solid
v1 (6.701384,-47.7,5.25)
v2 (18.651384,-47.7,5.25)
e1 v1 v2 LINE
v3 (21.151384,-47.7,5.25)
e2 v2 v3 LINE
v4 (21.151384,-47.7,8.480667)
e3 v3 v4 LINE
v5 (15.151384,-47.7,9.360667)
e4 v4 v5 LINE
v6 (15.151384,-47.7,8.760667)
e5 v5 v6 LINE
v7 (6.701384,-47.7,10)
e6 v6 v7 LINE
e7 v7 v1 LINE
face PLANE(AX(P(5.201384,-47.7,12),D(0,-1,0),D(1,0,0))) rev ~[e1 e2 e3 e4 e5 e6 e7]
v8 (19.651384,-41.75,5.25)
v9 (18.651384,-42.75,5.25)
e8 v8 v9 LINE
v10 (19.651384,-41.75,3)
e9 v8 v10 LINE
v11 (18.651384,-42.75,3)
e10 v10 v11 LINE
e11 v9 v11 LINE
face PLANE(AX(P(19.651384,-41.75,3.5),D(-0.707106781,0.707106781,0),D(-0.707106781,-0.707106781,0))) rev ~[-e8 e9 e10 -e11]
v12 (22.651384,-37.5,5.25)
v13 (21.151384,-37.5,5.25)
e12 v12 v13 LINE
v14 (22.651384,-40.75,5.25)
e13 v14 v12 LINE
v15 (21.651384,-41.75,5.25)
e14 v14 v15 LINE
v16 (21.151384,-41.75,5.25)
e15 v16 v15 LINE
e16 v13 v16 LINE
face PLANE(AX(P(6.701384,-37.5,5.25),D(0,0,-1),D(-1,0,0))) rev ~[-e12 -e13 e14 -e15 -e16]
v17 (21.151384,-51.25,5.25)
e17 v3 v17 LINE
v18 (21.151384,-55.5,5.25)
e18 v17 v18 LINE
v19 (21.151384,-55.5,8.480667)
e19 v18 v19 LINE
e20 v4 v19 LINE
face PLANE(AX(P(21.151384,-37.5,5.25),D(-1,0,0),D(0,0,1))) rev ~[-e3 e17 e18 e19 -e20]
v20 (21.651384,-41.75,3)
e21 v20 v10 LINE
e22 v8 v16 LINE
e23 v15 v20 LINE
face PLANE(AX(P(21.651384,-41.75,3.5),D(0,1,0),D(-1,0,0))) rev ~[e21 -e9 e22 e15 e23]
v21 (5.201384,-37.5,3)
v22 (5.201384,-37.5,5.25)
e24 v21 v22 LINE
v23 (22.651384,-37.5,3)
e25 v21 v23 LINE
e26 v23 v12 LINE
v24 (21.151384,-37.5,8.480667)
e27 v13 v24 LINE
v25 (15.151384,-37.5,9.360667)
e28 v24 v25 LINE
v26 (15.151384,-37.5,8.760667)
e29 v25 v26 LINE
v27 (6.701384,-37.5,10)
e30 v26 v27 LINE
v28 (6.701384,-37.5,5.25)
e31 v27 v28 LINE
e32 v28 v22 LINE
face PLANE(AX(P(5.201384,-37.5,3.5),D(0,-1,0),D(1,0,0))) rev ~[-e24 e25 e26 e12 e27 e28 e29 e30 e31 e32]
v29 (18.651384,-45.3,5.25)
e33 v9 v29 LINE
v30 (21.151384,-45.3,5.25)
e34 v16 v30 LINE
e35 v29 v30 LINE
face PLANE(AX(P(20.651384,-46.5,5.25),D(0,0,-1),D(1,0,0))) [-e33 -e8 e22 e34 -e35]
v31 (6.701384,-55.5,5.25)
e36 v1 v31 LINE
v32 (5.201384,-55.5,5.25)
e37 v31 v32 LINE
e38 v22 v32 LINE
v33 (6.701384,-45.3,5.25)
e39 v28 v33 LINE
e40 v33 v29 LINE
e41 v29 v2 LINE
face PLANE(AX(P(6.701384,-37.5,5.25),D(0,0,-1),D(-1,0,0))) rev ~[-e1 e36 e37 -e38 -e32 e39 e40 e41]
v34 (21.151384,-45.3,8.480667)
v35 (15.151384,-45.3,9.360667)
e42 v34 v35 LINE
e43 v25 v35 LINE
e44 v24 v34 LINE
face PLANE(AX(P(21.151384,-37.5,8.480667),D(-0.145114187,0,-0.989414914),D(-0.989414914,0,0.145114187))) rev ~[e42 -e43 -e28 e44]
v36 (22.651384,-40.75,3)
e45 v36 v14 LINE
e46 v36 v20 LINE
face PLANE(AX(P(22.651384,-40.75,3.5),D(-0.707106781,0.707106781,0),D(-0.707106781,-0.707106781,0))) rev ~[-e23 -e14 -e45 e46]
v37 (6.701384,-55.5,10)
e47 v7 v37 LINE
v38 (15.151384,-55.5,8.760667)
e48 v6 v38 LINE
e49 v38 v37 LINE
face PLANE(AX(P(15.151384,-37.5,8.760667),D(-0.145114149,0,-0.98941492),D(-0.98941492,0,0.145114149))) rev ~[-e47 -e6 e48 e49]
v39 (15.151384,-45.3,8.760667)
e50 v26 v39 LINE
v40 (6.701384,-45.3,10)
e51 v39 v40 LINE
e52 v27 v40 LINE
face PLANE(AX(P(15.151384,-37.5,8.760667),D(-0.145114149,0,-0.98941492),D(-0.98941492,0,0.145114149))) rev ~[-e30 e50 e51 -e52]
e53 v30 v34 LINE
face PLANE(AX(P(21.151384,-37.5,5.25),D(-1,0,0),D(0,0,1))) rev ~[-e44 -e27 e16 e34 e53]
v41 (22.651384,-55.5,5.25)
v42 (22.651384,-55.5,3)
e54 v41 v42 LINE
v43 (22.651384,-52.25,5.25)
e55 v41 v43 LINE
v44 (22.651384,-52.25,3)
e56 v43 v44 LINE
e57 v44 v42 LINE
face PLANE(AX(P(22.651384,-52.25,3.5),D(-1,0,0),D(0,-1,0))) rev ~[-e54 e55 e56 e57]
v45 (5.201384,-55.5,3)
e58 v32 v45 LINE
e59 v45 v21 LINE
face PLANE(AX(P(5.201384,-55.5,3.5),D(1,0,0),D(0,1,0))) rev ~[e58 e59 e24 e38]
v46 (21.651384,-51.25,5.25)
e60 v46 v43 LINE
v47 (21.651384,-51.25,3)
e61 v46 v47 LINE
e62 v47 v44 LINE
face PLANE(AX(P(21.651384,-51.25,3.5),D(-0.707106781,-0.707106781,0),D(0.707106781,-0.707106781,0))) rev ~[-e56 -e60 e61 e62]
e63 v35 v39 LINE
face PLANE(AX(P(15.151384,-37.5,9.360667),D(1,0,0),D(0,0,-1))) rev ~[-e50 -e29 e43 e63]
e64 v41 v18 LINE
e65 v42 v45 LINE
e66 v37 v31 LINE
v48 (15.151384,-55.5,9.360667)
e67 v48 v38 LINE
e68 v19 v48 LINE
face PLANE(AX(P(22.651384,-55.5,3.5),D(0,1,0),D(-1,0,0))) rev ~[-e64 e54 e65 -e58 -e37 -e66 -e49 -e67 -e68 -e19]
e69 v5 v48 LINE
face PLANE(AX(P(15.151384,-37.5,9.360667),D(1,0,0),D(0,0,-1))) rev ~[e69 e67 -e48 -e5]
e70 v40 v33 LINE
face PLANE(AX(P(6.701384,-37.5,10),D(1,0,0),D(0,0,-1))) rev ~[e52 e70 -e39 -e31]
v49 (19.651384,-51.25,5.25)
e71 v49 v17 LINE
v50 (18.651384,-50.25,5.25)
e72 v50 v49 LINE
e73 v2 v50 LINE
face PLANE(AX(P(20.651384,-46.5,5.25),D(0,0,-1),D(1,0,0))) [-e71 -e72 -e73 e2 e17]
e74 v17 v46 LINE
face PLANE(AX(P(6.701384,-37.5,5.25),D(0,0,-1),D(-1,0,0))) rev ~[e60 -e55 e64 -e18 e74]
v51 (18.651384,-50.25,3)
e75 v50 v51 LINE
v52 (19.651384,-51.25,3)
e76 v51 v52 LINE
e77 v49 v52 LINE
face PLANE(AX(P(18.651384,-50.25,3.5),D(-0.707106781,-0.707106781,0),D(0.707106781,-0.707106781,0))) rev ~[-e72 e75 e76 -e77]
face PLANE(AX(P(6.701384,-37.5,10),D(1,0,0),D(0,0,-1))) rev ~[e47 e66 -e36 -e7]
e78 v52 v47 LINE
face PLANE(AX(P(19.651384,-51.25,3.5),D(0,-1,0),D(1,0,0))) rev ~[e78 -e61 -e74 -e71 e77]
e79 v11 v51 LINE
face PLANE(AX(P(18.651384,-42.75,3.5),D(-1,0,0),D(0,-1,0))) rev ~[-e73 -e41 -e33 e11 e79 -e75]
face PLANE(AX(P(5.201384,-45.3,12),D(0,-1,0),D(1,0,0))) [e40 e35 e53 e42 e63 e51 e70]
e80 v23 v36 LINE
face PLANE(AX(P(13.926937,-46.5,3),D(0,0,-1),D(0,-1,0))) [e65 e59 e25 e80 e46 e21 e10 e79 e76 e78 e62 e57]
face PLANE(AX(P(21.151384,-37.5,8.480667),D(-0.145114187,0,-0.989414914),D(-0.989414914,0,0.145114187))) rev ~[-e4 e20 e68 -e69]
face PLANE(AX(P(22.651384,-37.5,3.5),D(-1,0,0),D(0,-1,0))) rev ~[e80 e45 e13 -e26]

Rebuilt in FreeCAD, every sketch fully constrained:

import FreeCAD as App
import Part
import Sketcher

V = App.Vector


def edges_at(feature, points):
    """Names of the edges that pass closest to the given points."""
    edges = feature.Shape.Edges
    near = lambda p: min(range(len(edges)), key=lambda i: edges[i].distToShape(Part.Vertex(*p))[0])
    return sorted({f"Edge{near(p) + 1}" for p in points})

doc = App.newDocument("Part")
params = doc.addObject("Spreadsheet::Sheet", "Params")
for row, (alias, value) in enumerate([
    ("sketch1_height", "1 mm"),
    ("sketch1_width", "1.5 mm"),
    ("sketch1_height2", "0.6 mm"),
    ("sketch1_width2", "17.45 mm"),
    ("sketch1_height3", "4.75 mm"),
    ("pad1_length", "18 mm"),
    ("sketch2_height", "2.4 mm"),
    ("sketch2_width", "17.45 mm"),
    ("pocket1_length", "6.75 mm"),
    ("sketch3_width", "6 mm"),
    ("pad2_length", "0.75 mm"),
    ("sketch4_width", "4 mm"),
    ("sketch4_height", "9.5 mm"),
    ("pocket2_length", "1 mm"),
    ("chamfer_size", "1 mm"),
    ("sketch5_width", "6 mm"),
    ("sketch5_height", "0.75 mm"),
    ("pad3_length", "12 mm"),
    ("sketch6_width", "2 mm"),
    ("sketch6_height", "18 mm"),
    ("sketch6_height2", "7.5 mm"),
    ("sketch6_width2", "11.45 mm"),
    ("pad4_length", "0.75 mm"),
    ("sketch7_width", "2 mm"),
    ("sketch7_height", "18 mm"),
    ("sketch7_height2", "7.5 mm"),
    ("sketch7_width2", "17.45 mm"),
    ("pad5_length", "0.5 mm"),
], start=1):
    params.set(f"A{row}", alias)
    params.set(f"B{row}", "=" + value)
    params.setAlias(f"B{row}", alias)

body = doc.addObject("PartDesign::Body", "Body")

# Sketch on XZ plane
sketch1 = doc.addObject("Sketcher::SketchObject", "Sketch")
body.addObject(sketch1)
sketch1.AttachmentSupport = (doc.XZ_Plane, [""])
sketch1.MapMode = "FlatFace"
sketch1.addGeometry([
    Part.LineSegment(V(21.151384, 8.480667, 0), V(15.151384, 9.360667, 0)),  # 0
    Part.LineSegment(V(15.151384, 9.360667, 0), V(15.151384, 8.760667, 0)),  # 1
    Part.LineSegment(V(15.151384, 8.760667, 0), V(6.701384, 10, 0)),  # 2
    Part.LineSegment(V(6.701384, 10, 0), V(6.701384, 5.25, 0)),  # 3
    Part.LineSegment(V(6.701384, 5.25, 0), V(5.201384, 5.25, 0)),  # 4
    Part.LineSegment(V(5.201384, 5.25, 0), V(5.201384, 4.25, 0)),  # 5
    Part.LineSegment(V(5.201384, 4.25, 0), V(22.651384, 4.25, 0)),  # 6
    Part.LineSegment(V(22.651384, 4.25, 0), V(22.651384, 5.25, 0)),  # 7
    Part.LineSegment(V(22.651384, 5.25, 0), V(21.151384, 5.25, 0)),  # 8
    Part.LineSegment(V(21.151384, 5.25, 0), V(21.151384, 8.480667, 0)),  # 9
], False)
sketch1.addConstraint([
    Sketcher.Constraint("Coincident", 0, 2, 1, 1),
    Sketcher.Constraint("Coincident", 1, 2, 2, 1),
    Sketcher.Constraint("Coincident", 2, 2, 3, 1),
    Sketcher.Constraint("Coincident", 3, 2, 4, 1),
    Sketcher.Constraint("Coincident", 4, 2, 5, 1),
    Sketcher.Constraint("Coincident", 5, 2, 6, 1),
    Sketcher.Constraint("Coincident", 6, 2, 7, 1),
    Sketcher.Constraint("Coincident", 7, 2, 8, 1),
    Sketcher.Constraint("Coincident", 8, 2, 9, 1),
    Sketcher.Constraint("Coincident", 9, 2, 0, 1),
    Sketcher.Constraint("Vertical", 1),
    Sketcher.Constraint("Vertical", 3),
    Sketcher.Constraint("Horizontal", 4),
    Sketcher.Constraint("Vertical", 5),
    Sketcher.Constraint("Horizontal", 6),
    Sketcher.Constraint("Vertical", 7),
    Sketcher.Constraint("Horizontal", 8),
    Sketcher.Constraint("Vertical", 9),
    Sketcher.Constraint("Parallel", 0, 2),
    Sketcher.Constraint("Horizontal", 4, 2, 7, 2),
    Sketcher.Constraint("Equal", 4, 8),
    Sketcher.Constraint("DistanceY", 5, 2, 5, 1, 1.0),
    Sketcher.Constraint("DistanceX", 4, 2, 4, 1, 1.5),
    Sketcher.Constraint("DistanceY", 1, 2, 1, 1, 0.6),
    Sketcher.Constraint("DistanceY", -1, 1, 2, 2, 10.0),
    Sketcher.Constraint("DistanceX", 1, 2, 8, 2, 6.0),
    Sketcher.Constraint("DistanceX", 6, 1, 6, 2, 17.45),
    Sketcher.Constraint("DistanceY", 3, 2, 3, 1, 4.75),
    Sketcher.Constraint("DistanceY", 9, 2, 1, 2, 0.28),
    Sketcher.Constraint("DistanceX", -1, 1, 0, 2, 15.151384),
])
sketch1.setExpression("Constraints[21]", "Params.sketch1_height")
sketch1.setExpression("Constraints[22]", "Params.sketch1_width")
sketch1.setExpression("Constraints[23]", "Params.sketch1_height2")
sketch1.setExpression("Constraints[26]", "Params.sketch1_width2")
sketch1.setExpression("Constraints[27]", "Params.sketch1_height3")
pad1 = doc.addObject("PartDesign::Pad", "Pad")
body.addObject(pad1)
pad1.Profile = sketch1
pad1.setExpression("Length", "Params.pad1_length")

# Sketch on XY plane
sketch2 = doc.addObject("Sketcher::SketchObject", "Sketch001")
body.addObject(sketch2)
sketch2.AttachmentSupport = (doc.XY_Plane, [""])
sketch2.MapMode = "FlatFace"
sketch2.AttachmentOffset = App.Placement(V(0, 0, 12), App.Rotation())
sketch2.addGeometry([
    Part.LineSegment(V(5.201384, -7.8, 0), V(5.201384, -10.2, 0)),
    Part.LineSegment(V(5.201384, -10.2, 0), V(22.651384, -10.2, 0)),
    Part.LineSegment(V(22.651384, -10.2, 0), V(22.651384, -7.8, 0)),
    Part.LineSegment(V(22.651384, -7.8, 0), V(5.201384, -7.8, 0)),
], False)
sketch2.addConstraint([
    Sketcher.Constraint("Coincident", 0, 2, 1, 1),
    Sketcher.Constraint("Coincident", 1, 2, 2, 1),
    Sketcher.Constraint("Coincident", 2, 2, 3, 1),
    Sketcher.Constraint("Coincident", 3, 2, 0, 1),
    Sketcher.Constraint("Vertical", 0),
    Sketcher.Constraint("Horizontal", 1),
    Sketcher.Constraint("Vertical", 2),
    Sketcher.Constraint("Horizontal", 3),
    Sketcher.Constraint("DistanceY", 0, 2, 0, 1, 2.4),
    Sketcher.Constraint("DistanceX", 1, 1, 1, 2, 17.45),
    Sketcher.Constraint("DistanceY", 0, 2, -1, 1, 10.2),
    Sketcher.Constraint("DistanceX", -1, 1, 0, 2, 5.201384),
])
sketch2.setExpression("Constraints[8]", "Params.sketch2_height")
sketch2.setExpression("Constraints[9]", "Params.sketch2_width")
pocket1 = doc.addObject("PartDesign::Pocket", "Pocket")
body.addObject(pocket1)
pocket1.Profile = sketch2
pocket1.setExpression("Length", "Params.pocket1_length")

# Sketch on XY plane
sketch3 = doc.addObject("Sketcher::SketchObject", "Sketch002")
body.addObject(sketch3)
sketch3.AttachmentSupport = (doc.XY_Plane, [""])
sketch3.MapMode = "FlatFace"
sketch3.AttachmentOffset = App.Placement(V(0, 0, 4.25), App.Rotation())
sketch3.addGeometry([
    Part.LineSegment(V(5.201384, -6, 0), V(5.201384, 0, 0)),
    Part.LineSegment(V(5.201384, 0, 0), V(11.201384, 0, 0)),
    Part.LineSegment(V(11.201384, 0, 0), V(11.201384, -6, 0)),
    Part.LineSegment(V(11.201384, -6, 0), V(5.201384, -6, 0)),
], False)
sketch3.addConstraint([
    Sketcher.Constraint("Coincident", 0, 2, 1, 1),
    Sketcher.Constraint("Coincident", 1, 2, 2, 1),
    Sketcher.Constraint("Coincident", 2, 2, 3, 1),
    Sketcher.Constraint("Coincident", 3, 2, 0, 1),
    Sketcher.Constraint("Vertical", 0),
    Sketcher.Constraint("Horizontal", 1),
    Sketcher.Constraint("Vertical", 2),
    Sketcher.Constraint("Horizontal", 3),
    Sketcher.Constraint("PointOnObject", 0, 2, -1),
    Sketcher.Constraint("Equal", 3, 0),
    Sketcher.Constraint("DistanceX", 1, 1, 1, 2, 6.0),
    Sketcher.Constraint("DistanceX", -1, 1, 0, 2, 5.201384),
])
sketch3.setExpression("Constraints[10]", "Params.sketch3_width")
pad2 = doc.addObject("PartDesign::Pad", "Pad001")
body.addObject(pad2)
pad2.Profile = sketch3
pad2.setExpression("Length", "Params.pad2_length")
pad2.Reversed = True

# Sketch on XY plane
sketch4 = doc.addObject("Sketcher::SketchObject", "Sketch003")
body.addObject(sketch4)
sketch4.AttachmentSupport = (doc.XY_Plane, [""])
sketch4.MapMode = "FlatFace"
sketch4.AttachmentOffset = App.Placement(V(0, 0, 4.25), App.Rotation())
sketch4.addGeometry([
    Part.LineSegment(V(18.651384, -13.75, 0), V(18.651384, -4.25, 0)),
    Part.LineSegment(V(18.651384, -4.25, 0), V(22.651384, -4.25, 0)),
    Part.LineSegment(V(22.651384, -4.25, 0), V(22.651384, -13.75, 0)),
    Part.LineSegment(V(22.651384, -13.75, 0), V(18.651384, -13.75, 0)),
], False)
sketch4.addConstraint([
    Sketcher.Constraint("Coincident", 0, 2, 1, 1),
    Sketcher.Constraint("Coincident", 1, 2, 2, 1),
    Sketcher.Constraint("Coincident", 2, 2, 3, 1),
    Sketcher.Constraint("Coincident", 3, 2, 0, 1),
    Sketcher.Constraint("Vertical", 0),
    Sketcher.Constraint("Horizontal", 1),
    Sketcher.Constraint("Vertical", 2),
    Sketcher.Constraint("Horizontal", 3),
    Sketcher.Constraint("DistanceX", 1, 1, 1, 2, 4.0),
    Sketcher.Constraint("DistanceY", 0, 1, 0, 2, 9.5),
    Sketcher.Constraint("DistanceY", 0, 2, -1, 1, 4.25),
    Sketcher.Constraint("DistanceX", -1, 1, 0, 2, 18.651384),
])
sketch4.setExpression("Constraints[8]", "Params.sketch4_width")
sketch4.setExpression("Constraints[9]", "Params.sketch4_height")
pocket2 = doc.addObject("PartDesign::Pocket", "Pocket001")
body.addObject(pocket2)
pocket2.Profile = sketch4
pocket2.setExpression("Length", "Params.pocket2_length")
pocket2.Reversed = True
doc.recompute()

chamfer = doc.addObject("PartDesign::Chamfer", "Chamfer")
body.addObject(chamfer)
chamfer.Base = (pocket2, edges_at(pocket2, [
    (18.651, -4.25, 4.75),
    (18.651, -13.75, 4.75),
    (22.651, -4.25, 4.75),
    (22.651, -13.75, 4.75),
]))
chamfer.setExpression("Size", "Params.chamfer_size")

# Sketch on XZ plane
sketch5 = doc.addObject("Sketcher::SketchObject", "Sketch004")
body.addObject(sketch5)
sketch5.AttachmentSupport = (doc.XZ_Plane, [""])
sketch5.MapMode = "FlatFace"
sketch5.AttachmentOffset = App.Placement(V(0, 0, 6), App.Rotation())
sketch5.addGeometry([
    Part.LineSegment(V(11.201384, 3.5, 0), V(11.201384, 4.25, 0)),
    Part.LineSegment(V(11.201384, 4.25, 0), V(5.201384, 4.25, 0)),
    Part.LineSegment(V(5.201384, 4.25, 0), V(5.201384, 3.5, 0)),
    Part.LineSegment(V(5.201384, 3.5, 0), V(11.201384, 3.5, 0)),
], False)
sketch5.addConstraint([
    Sketcher.Constraint("Coincident", 0, 2, 1, 1),
    Sketcher.Constraint("Coincident", 1, 2, 2, 1),
    Sketcher.Constraint("Coincident", 2, 2, 3, 1),
    Sketcher.Constraint("Coincident", 3, 2, 0, 1),
    Sketcher.Constraint("Vertical", 0),
    Sketcher.Constraint("Horizontal", 1),
    Sketcher.Constraint("Vertical", 2),
    Sketcher.Constraint("Horizontal", 3),
    Sketcher.Constraint("DistanceX", 1, 2, 1, 1, 6.0),
    Sketcher.Constraint("DistanceY", 0, 1, 0, 2, 0.75),
    Sketcher.Constraint("DistanceY", -1, 1, 2, 2, 3.5),
    Sketcher.Constraint("DistanceX", -1, 1, 0, 2, 11.201384),
])
sketch5.setExpression("Constraints[8]", "Params.sketch5_width")
sketch5.setExpression("Constraints[9]", "Params.sketch5_height")
pad3 = doc.addObject("PartDesign::Pad", "Pad002")
body.addObject(pad3)
pad3.Profile = sketch5
pad3.setExpression("Length", "Params.pad3_length")

# Sketch on XY plane
sketch6 = doc.addObject("Sketcher::SketchObject", "Sketch005")
body.addObject(sketch6)
sketch6.AttachmentSupport = (doc.XY_Plane, [""])
sketch6.MapMode = "FlatFace"
sketch6.AttachmentOffset = App.Placement(V(0, 0, 4.25), App.Rotation())
sketch6.addGeometry([
    Part.LineSegment(V(22.651384, -3.25, 0), V(21.651384, -4.25, 0)),  # 0
    Part.LineSegment(V(21.651384, -4.25, 0), V(19.651384, -4.25, 0)),  # 1
    Part.LineSegment(V(19.651384, -4.25, 0), V(18.651384, -5.25, 0)),  # 2
    Part.LineSegment(V(18.651384, -5.25, 0), V(18.651384, -12.75, 0)),  # 3
    Part.LineSegment(V(18.651384, -12.75, 0), V(19.651384, -13.75, 0)),  # 4
    Part.LineSegment(V(19.651384, -13.75, 0), V(21.651384, -13.75, 0)),  # 5
    Part.LineSegment(V(21.651384, -13.75, 0), V(22.651384, -14.75, 0)),  # 6
    Part.LineSegment(V(22.651384, -14.75, 0), V(22.651384, -18, 0)),  # 7
    Part.LineSegment(V(22.651384, -18, 0), V(11.201384, -18, 0)),  # 8
    Part.LineSegment(V(11.201384, -18, 0), V(11.201384, 0, 0)),  # 9
    Part.LineSegment(V(11.201384, 0, 0), V(22.651384, 0, 0)),  # 10
    Part.LineSegment(V(22.651384, 0, 0), V(22.651384, -3.25, 0)),  # 11
], False)
sketch6.addConstraint([
    Sketcher.Constraint("Coincident", 0, 2, 1, 1),
    Sketcher.Constraint("Coincident", 1, 2, 2, 1),
    Sketcher.Constraint("Coincident", 2, 2, 3, 1),
    Sketcher.Constraint("Coincident", 3, 2, 4, 1),
    Sketcher.Constraint("Coincident", 4, 2, 5, 1),
    Sketcher.Constraint("Coincident", 5, 2, 6, 1),
    Sketcher.Constraint("Coincident", 6, 2, 7, 1),
    Sketcher.Constraint("Coincident", 7, 2, 8, 1),
    Sketcher.Constraint("Coincident", 8, 2, 9, 1),
    Sketcher.Constraint("Coincident", 9, 2, 10, 1),
    Sketcher.Constraint("Coincident", 10, 2, 11, 1),
    Sketcher.Constraint("Coincident", 11, 2, 0, 1),
    Sketcher.Constraint("Horizontal", 1),
    Sketcher.Constraint("Vertical", 3),
    Sketcher.Constraint("Horizontal", 5),
    Sketcher.Constraint("Vertical", 7),
    Sketcher.Constraint("Horizontal", 8),
    Sketcher.Constraint("Vertical", 9),
    Sketcher.Constraint("Horizontal", 10),
    Sketcher.Constraint("Vertical", 11),
    Sketcher.Constraint("PointOnObject", 9, 2, -1),
    Sketcher.Constraint("Parallel", 0, 2),
    Sketcher.Constraint("Perpendicular", 2, 4),
    Sketcher.Constraint("Parallel", 4, 6),
    Sketcher.Constraint("Vertical", 1, 2, 4, 2),
    Sketcher.Constraint("Vertical", 0, 2, 5, 2),
    Sketcher.Constraint("Vertical", 7, 2, 10, 2),
    Sketcher.Constraint("Equal", 7, 11),
    Sketcher.Constraint("Equal", 0, 2),
    Sketcher.Constraint("Equal", 2, 4),
    Sketcher.Constraint("DistanceX", 1, 2, 1, 1, 2.0),
    Sketcher.Constraint("DistanceY", 9, 1, 9, 2, 18.0),
    Sketcher.Constraint("DistanceY", 3, 2, 3, 1, 7.5),
    Sketcher.Constraint("DistanceX", 2, 2, 1, 2, 1.0),
    Sketcher.Constraint("DistanceX", 8, 2, 8, 1, 11.45),
    Sketcher.Constraint("DistanceX", -1, 1, 0, 2, 21.651384),
])
sketch6.setExpression("Constraints[30]", "Params.sketch6_width")
sketch6.setExpression("Constraints[31]", "Params.sketch6_height")
sketch6.setExpression("Constraints[32]", "Params.sketch6_height2")
sketch6.setExpression("Constraints[34]", "Params.sketch6_width2")
pad4 = doc.addObject("PartDesign::Pad", "Pad003")
body.addObject(pad4)
pad4.Profile = sketch6
pad4.setExpression("Length", "Params.pad4_length")
pad4.Reversed = True

# Sketch on XY plane
sketch7 = doc.addObject("Sketcher::SketchObject", "Sketch006")
body.addObject(sketch7)
sketch7.AttachmentSupport = (doc.XY_Plane, [""])
sketch7.MapMode = "FlatFace"
sketch7.AttachmentOffset = App.Placement(V(0, 0, 3.5), App.Rotation())
sketch7.addGeometry([
    Part.LineSegment(V(22.651384, -3.25, 0), V(21.651384, -4.25, 0)),  # 0
    Part.LineSegment(V(21.651384, -4.25, 0), V(19.651384, -4.25, 0)),  # 1
    Part.LineSegment(V(19.651384, -4.25, 0), V(18.651384, -5.25, 0)),  # 2
    Part.LineSegment(V(18.651384, -5.25, 0), V(18.651384, -12.75, 0)),  # 3
    Part.LineSegment(V(18.651384, -12.75, 0), V(19.651384, -13.75, 0)),  # 4
    Part.LineSegment(V(19.651384, -13.75, 0), V(21.651384, -13.75, 0)),  # 5
    Part.LineSegment(V(21.651384, -13.75, 0), V(22.651384, -14.75, 0)),  # 6
    Part.LineSegment(V(22.651384, -14.75, 0), V(22.651384, -18, 0)),  # 7
    Part.LineSegment(V(22.651384, -18, 0), V(5.201384, -18, 0)),  # 8
    Part.LineSegment(V(5.201384, -18, 0), V(5.201384, 0, 0)),  # 9
    Part.LineSegment(V(5.201384, 0, 0), V(22.651384, 0, 0)),  # 10
    Part.LineSegment(V(22.651384, 0, 0), V(22.651384, -3.25, 0)),  # 11
], False)
sketch7.addConstraint([
    Sketcher.Constraint("Coincident", 0, 2, 1, 1),
    Sketcher.Constraint("Coincident", 1, 2, 2, 1),
    Sketcher.Constraint("Coincident", 2, 2, 3, 1),
    Sketcher.Constraint("Coincident", 3, 2, 4, 1),
    Sketcher.Constraint("Coincident", 4, 2, 5, 1),
    Sketcher.Constraint("Coincident", 5, 2, 6, 1),
    Sketcher.Constraint("Coincident", 6, 2, 7, 1),
    Sketcher.Constraint("Coincident", 7, 2, 8, 1),
    Sketcher.Constraint("Coincident", 8, 2, 9, 1),
    Sketcher.Constraint("Coincident", 9, 2, 10, 1),
    Sketcher.Constraint("Coincident", 10, 2, 11, 1),
    Sketcher.Constraint("Coincident", 11, 2, 0, 1),
    Sketcher.Constraint("Horizontal", 1),
    Sketcher.Constraint("Vertical", 3),
    Sketcher.Constraint("Horizontal", 5),
    Sketcher.Constraint("Vertical", 7),
    Sketcher.Constraint("Horizontal", 8),
    Sketcher.Constraint("Vertical", 9),
    Sketcher.Constraint("Horizontal", 10),
    Sketcher.Constraint("Vertical", 11),
    Sketcher.Constraint("PointOnObject", 9, 2, -1),
    Sketcher.Constraint("Parallel", 0, 2),
    Sketcher.Constraint("Perpendicular", 2, 4),
    Sketcher.Constraint("Parallel", 4, 6),
    Sketcher.Constraint("Vertical", 1, 2, 4, 2),
    Sketcher.Constraint("Vertical", 0, 2, 5, 2),
    Sketcher.Constraint("Vertical", 7, 2, 10, 2),
    Sketcher.Constraint("Equal", 7, 11),
    Sketcher.Constraint("Equal", 0, 2),
    Sketcher.Constraint("Equal", 2, 4),
    Sketcher.Constraint("DistanceX", 1, 2, 1, 1, 2.0),
    Sketcher.Constraint("DistanceY", 9, 1, 9, 2, 18.0),
    Sketcher.Constraint("DistanceY", 3, 2, 3, 1, 7.5),
    Sketcher.Constraint("DistanceX", 2, 2, 1, 2, 1.0),
    Sketcher.Constraint("DistanceX", 8, 2, 8, 1, 17.45),
    Sketcher.Constraint("DistanceX", -1, 1, 0, 2, 21.651384),
])
sketch7.setExpression("Constraints[30]", "Params.sketch7_width")
sketch7.setExpression("Constraints[31]", "Params.sketch7_height")
sketch7.setExpression("Constraints[32]", "Params.sketch7_height2")
sketch7.setExpression("Constraints[34]", "Params.sketch7_width2")
pad5 = doc.addObject("PartDesign::Pad", "Pad004")
body.addObject(pad5)
pad5.Profile = sketch7
pad5.setExpression("Length", "Params.pad5_length")
pad5.Reversed = True
body2 = doc.addObject("PartDesign::Body", "Body001")
doc.recompute()

body.Placement = App.Placement(V(0, -37.5, 0), App.Rotation(V(0, 0, 1), 0))
boolean = doc.addObject("PartDesign::Boolean", "Boolean")
body2.addObject(boolean)
boolean.Type = "Fuse"
boolean.addObjects([body])

doc.recompute()
